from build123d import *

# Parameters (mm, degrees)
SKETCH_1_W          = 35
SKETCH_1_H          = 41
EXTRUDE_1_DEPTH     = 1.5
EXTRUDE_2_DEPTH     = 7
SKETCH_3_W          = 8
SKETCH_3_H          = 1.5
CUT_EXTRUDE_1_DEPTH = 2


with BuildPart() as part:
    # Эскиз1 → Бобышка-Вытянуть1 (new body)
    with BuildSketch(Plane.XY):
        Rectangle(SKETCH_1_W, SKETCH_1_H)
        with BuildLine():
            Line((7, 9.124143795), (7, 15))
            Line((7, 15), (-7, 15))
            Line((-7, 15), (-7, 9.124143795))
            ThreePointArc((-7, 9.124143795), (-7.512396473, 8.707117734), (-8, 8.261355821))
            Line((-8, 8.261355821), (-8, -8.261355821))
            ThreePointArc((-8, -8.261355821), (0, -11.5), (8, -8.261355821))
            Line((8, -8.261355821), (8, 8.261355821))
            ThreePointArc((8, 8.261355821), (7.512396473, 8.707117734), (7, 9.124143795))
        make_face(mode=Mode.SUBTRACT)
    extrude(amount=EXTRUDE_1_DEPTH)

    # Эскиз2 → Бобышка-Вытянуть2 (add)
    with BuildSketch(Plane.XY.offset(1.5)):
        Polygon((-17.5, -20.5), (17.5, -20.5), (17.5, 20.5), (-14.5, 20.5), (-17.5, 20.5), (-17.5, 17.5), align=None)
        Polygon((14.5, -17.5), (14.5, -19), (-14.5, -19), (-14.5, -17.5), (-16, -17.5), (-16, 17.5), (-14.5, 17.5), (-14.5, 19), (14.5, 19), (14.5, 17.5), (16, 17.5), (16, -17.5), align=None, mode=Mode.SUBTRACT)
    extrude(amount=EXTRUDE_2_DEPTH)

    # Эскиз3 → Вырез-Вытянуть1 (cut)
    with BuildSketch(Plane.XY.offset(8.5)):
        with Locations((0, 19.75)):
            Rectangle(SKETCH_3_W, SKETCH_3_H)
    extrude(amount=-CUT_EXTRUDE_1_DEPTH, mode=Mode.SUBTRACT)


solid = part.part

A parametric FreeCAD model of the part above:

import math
import FreeCAD as App
import Part
import Sketcher
Q = App.Units.Quantity


def add_polygon(sketch, points):
    """Adds a closed chain of lines whose ends are joined by coincident constraints."""
    first, n = sketch.GeometryCount, len(points)
    for a, b in zip(points, points[1:] + points[:1]):
        sketch.addGeometry(Part.LineSegment(App.Vector(*a, 0), App.Vector(*b, 0)), False)
    for i in range(n):
        sketch.addConstraint(Sketcher.Constraint("Coincident", first + i, 2, first + (i + 1) % n, 1))

doc = App.newDocument("Part")
body = doc.addObject("PartDesign::Body", "Body")

# Sketch on XY plane
sketch1 = body.newObject("Sketcher::SketchObject", "Sketch")
sketch1.AttachmentSupport = (doc.getObject("XY_Plane"), [""])
sketch1.MapMode = "FlatFace"
add_polygon(sketch1, [(-17.5, 20.5), (-17.5, -20.5), (17.5, -20.5), (17.5, 20.5)])  # lines 0-3
sketch1.addGeometry(Part.LineSegment(App.Vector(7, 15, 0), App.Vector(7, 9.1, 0)), False)  # 4
sketch1.addGeometry(Part.ArcOfCircle(Part.Circle(App.Vector(0, 0, 0), App.Vector(0, 0, 1), 11.5), math.radians(45.92), math.radians(52.5)), False)  # 5
sketch1.addGeometry(Part.LineSegment(App.Vector(8, 8.3, 0), App.Vector(8, -8.3, 0)), False)  # 6
sketch1.addGeometry(Part.ArcOfCircle(Part.Circle(App.Vector(0, 0, 0), App.Vector(0, 0, 1), 11.5), math.radians(-134), math.radians(-46)), False)  # 7
sketch1.addGeometry(Part.LineSegment(App.Vector(-8, -8.3, 0), App.Vector(-8, 8.3, 0)), False)  # 8
sketch1.addGeometry(Part.ArcOfCircle(Part.Circle(App.Vector(0, 0, 0), App.Vector(0, 0, 1), 11.5), math.radians(127.5), math.radians(134.08)), False)  # 9
sketch1.addGeometry(Part.LineSegment(App.Vector(-7, 9.1, 0), App.Vector(-7, 15, 0)), False)  # 10
sketch1.addGeometry(Part.LineSegment(App.Vector(-7, 15, 0), App.Vector(7, 15, 0)), False)  # 11
sketch1.addConstraint([
    Sketcher.Constraint("Coincident", 4, 2, 5, 2),
    Sketcher.Constraint("Coincident", 5, 1, 6, 1),
    Sketcher.Constraint("Coincident", 6, 2, 7, 2),
    Sketcher.Constraint("Coincident", 7, 1, 8, 1),
    Sketcher.Constraint("Coincident", 8, 2, 9, 2),
    Sketcher.Constraint("Coincident", 9, 1, 10, 1),
    Sketcher.Constraint("Coincident", 10, 2, 11, 1),
    Sketcher.Constraint("Coincident", 11, 2, 4, 1),
    Sketcher.Constraint("Vertical", 0),
    Sketcher.Constraint("Horizontal", 1),
    Sketcher.Constraint("Vertical", 2),
    Sketcher.Constraint("Horizontal", 3),
    Sketcher.Constraint("Vertical", 4),
    Sketcher.Constraint("Vertical", 6),
    Sketcher.Constraint("Vertical", 8),
    Sketcher.Constraint("Vertical", 10),
    Sketcher.Constraint("Horizontal", 11),
    Sketcher.Constraint("Coincident", 5, 3, -1, 1),
    Sketcher.Constraint("Coincident", 7, 3, -1, 1),
    Sketcher.Constraint("Coincident", 9, 3, -1, 1),
    Sketcher.Constraint("Equal", 5, 7),
    Sketcher.Constraint("Equal", 7, 9),
    Sketcher.Constraint("Symmetric", 0, 2, 2, 2, -1, 1),
    Sketcher.Constraint("Horizontal", 6, 2, 7, 1),
    Sketcher.Constraint("Horizontal", 4, 2, 9, 1),
    Sketcher.Constraint("Radius", 5, Q("11.5 mm")),
    Sketcher.Constraint("DistanceX", 1, 1, 1, 2, Q("35 mm")),
    Sketcher.Constraint("DistanceX", 11, 1, 11, 2, Q("14 mm")),
    Sketcher.Constraint("DistanceY", 0, 2, 0, 1, Q("41 mm")),
    Sketcher.Constraint("DistanceX", -1, 1, 5, 1, Q("8 mm")),
    Sketcher.Constraint("DistanceY", -1, 1, 10, 2, Q("15 mm")),
])
pad1 = body.newObject("PartDesign::Pad", "Pad")
pad1.Profile = sketch1
pad1.Length = 1.5

# Sketch on XY plane
sketch2 = body.newObject("Sketcher::SketchObject", "Sketch001")
sketch2.AttachmentSupport = (doc.getObject("XY_Plane"), [""])
sketch2.MapMode = "FlatFace"
sketch2.AttachmentOffset = App.Placement(App.Vector(0, 0, 1.5), App.Rotation())
add_polygon(sketch2, [(-17.5, -20.5), (17.5, -20.5), (17.5, 20.5), (-17.5, 20.5)])  # lines 0-3
add_polygon(sketch2, [(16, -17.5), (14.5, -17.5), (14.5, -19), (-14.5, -19), (-14.5, -17.5), (-16, -17.5), (-16, 17.5), (-14.5, 17.5), (-14.5, 19), (14.5, 19), (14.5, 17.5), (16, 17.5)])  # lines 4-15
sketch2.addConstraint([
    Sketcher.Constraint("Horizontal", 0),
    Sketcher.Constraint("Vertical", 1),
    Sketcher.Constraint("Horizontal", 2),
    Sketcher.Constraint("Vertical", 3),
    Sketcher.Constraint("Horizontal", 4),
    Sketcher.Constraint("Vertical", 5),
    Sketcher.Constraint("Horizontal", 6),
    Sketcher.Constraint("Vertical", 7),
    Sketcher.Constraint("Horizontal", 8),
    Sketcher.Constraint("Vertical", 9),
    Sketcher.Constraint("Horizontal", 10),
    Sketcher.Constraint("Vertical", 11),
    Sketcher.Constraint("Horizontal", 12),
    Sketcher.Constraint("Vertical", 13),
    Sketcher.Constraint("Horizontal", 14),
    Sketcher.Constraint("Vertical", 15),
    Sketcher.Constraint("Symmetric", 0, 2, 2, 2, -1, 1),
    Sketcher.Constraint("Symmetric", 4, 2, 10, 2, -1, 1),
    Sketcher.Constraint("Symmetric", 6, 2, 12, 2, -1, 1),
    Sketcher.Constraint("Symmetric", 8, 2, 14, 2, -1, 1),
    Sketcher.Constraint("Symmetric", 4, 2, 7, 2, -2),
    Sketcher.Constraint("Equal", 14, 5),
    Sketcher.Constraint("Equal", 2, 9),
    Sketcher.Constraint("DistanceX", 0, 1, 0, 2, Q("35 mm")),
    Sketcher.Constraint("DistanceX", 6, 2, 6, 1, Q("29 mm")),
    Sketcher.Constraint("DistanceY", 1, 1, 1, 2, Q("41 mm")),
    Sketcher.Constraint("DistanceX", 4, 2, 4, 1, Q("1.5 mm")),
])
pad2 = body.newObject("PartDesign::Pad", "Pad001")
pad2.Profile = sketch2
pad2.Length = 7

# Sketch on XY plane
sketch3 = body.newObject("Sketcher::SketchObject", "Sketch002")
sketch3.AttachmentSupport = (doc.getObject("XY_Plane"), [""])
sketch3.MapMode = "FlatFace"
sketch3.AttachmentOffset = App.Placement(App.Vector(0, 0, 8.5), App.Rotation())
add_polygon(sketch3, [(-4, 20.5), (-4, 19), (4, 19), (4, 20.5)])  # lines 0-3
sketch3.addConstraint([
    Sketcher.Constraint("Vertical", 0),
    Sketcher.Constraint("Horizontal", 1),
    Sketcher.Constraint("Vertical", 2),
    Sketcher.Constraint("Horizontal", 3),
    Sketcher.Constraint("DistanceX", 1, 1, 1, 2, Q("8 mm")),
    Sketcher.Constraint("DistanceY", 0, 2, 0, 1, Q("1.5 mm")),
    Sketcher.Constraint("DistanceX", 0, 2, -1, 1, Q("4 mm")),
    Sketcher.Constraint("DistanceY", -1, 1, 0, 2, Q("19 mm")),
])
pocket1 = body.newObject("PartDesign::Pocket", "Pocket")
pocket1.Profile = sketch3
pocket1.Length = 2

doc.recompute()
